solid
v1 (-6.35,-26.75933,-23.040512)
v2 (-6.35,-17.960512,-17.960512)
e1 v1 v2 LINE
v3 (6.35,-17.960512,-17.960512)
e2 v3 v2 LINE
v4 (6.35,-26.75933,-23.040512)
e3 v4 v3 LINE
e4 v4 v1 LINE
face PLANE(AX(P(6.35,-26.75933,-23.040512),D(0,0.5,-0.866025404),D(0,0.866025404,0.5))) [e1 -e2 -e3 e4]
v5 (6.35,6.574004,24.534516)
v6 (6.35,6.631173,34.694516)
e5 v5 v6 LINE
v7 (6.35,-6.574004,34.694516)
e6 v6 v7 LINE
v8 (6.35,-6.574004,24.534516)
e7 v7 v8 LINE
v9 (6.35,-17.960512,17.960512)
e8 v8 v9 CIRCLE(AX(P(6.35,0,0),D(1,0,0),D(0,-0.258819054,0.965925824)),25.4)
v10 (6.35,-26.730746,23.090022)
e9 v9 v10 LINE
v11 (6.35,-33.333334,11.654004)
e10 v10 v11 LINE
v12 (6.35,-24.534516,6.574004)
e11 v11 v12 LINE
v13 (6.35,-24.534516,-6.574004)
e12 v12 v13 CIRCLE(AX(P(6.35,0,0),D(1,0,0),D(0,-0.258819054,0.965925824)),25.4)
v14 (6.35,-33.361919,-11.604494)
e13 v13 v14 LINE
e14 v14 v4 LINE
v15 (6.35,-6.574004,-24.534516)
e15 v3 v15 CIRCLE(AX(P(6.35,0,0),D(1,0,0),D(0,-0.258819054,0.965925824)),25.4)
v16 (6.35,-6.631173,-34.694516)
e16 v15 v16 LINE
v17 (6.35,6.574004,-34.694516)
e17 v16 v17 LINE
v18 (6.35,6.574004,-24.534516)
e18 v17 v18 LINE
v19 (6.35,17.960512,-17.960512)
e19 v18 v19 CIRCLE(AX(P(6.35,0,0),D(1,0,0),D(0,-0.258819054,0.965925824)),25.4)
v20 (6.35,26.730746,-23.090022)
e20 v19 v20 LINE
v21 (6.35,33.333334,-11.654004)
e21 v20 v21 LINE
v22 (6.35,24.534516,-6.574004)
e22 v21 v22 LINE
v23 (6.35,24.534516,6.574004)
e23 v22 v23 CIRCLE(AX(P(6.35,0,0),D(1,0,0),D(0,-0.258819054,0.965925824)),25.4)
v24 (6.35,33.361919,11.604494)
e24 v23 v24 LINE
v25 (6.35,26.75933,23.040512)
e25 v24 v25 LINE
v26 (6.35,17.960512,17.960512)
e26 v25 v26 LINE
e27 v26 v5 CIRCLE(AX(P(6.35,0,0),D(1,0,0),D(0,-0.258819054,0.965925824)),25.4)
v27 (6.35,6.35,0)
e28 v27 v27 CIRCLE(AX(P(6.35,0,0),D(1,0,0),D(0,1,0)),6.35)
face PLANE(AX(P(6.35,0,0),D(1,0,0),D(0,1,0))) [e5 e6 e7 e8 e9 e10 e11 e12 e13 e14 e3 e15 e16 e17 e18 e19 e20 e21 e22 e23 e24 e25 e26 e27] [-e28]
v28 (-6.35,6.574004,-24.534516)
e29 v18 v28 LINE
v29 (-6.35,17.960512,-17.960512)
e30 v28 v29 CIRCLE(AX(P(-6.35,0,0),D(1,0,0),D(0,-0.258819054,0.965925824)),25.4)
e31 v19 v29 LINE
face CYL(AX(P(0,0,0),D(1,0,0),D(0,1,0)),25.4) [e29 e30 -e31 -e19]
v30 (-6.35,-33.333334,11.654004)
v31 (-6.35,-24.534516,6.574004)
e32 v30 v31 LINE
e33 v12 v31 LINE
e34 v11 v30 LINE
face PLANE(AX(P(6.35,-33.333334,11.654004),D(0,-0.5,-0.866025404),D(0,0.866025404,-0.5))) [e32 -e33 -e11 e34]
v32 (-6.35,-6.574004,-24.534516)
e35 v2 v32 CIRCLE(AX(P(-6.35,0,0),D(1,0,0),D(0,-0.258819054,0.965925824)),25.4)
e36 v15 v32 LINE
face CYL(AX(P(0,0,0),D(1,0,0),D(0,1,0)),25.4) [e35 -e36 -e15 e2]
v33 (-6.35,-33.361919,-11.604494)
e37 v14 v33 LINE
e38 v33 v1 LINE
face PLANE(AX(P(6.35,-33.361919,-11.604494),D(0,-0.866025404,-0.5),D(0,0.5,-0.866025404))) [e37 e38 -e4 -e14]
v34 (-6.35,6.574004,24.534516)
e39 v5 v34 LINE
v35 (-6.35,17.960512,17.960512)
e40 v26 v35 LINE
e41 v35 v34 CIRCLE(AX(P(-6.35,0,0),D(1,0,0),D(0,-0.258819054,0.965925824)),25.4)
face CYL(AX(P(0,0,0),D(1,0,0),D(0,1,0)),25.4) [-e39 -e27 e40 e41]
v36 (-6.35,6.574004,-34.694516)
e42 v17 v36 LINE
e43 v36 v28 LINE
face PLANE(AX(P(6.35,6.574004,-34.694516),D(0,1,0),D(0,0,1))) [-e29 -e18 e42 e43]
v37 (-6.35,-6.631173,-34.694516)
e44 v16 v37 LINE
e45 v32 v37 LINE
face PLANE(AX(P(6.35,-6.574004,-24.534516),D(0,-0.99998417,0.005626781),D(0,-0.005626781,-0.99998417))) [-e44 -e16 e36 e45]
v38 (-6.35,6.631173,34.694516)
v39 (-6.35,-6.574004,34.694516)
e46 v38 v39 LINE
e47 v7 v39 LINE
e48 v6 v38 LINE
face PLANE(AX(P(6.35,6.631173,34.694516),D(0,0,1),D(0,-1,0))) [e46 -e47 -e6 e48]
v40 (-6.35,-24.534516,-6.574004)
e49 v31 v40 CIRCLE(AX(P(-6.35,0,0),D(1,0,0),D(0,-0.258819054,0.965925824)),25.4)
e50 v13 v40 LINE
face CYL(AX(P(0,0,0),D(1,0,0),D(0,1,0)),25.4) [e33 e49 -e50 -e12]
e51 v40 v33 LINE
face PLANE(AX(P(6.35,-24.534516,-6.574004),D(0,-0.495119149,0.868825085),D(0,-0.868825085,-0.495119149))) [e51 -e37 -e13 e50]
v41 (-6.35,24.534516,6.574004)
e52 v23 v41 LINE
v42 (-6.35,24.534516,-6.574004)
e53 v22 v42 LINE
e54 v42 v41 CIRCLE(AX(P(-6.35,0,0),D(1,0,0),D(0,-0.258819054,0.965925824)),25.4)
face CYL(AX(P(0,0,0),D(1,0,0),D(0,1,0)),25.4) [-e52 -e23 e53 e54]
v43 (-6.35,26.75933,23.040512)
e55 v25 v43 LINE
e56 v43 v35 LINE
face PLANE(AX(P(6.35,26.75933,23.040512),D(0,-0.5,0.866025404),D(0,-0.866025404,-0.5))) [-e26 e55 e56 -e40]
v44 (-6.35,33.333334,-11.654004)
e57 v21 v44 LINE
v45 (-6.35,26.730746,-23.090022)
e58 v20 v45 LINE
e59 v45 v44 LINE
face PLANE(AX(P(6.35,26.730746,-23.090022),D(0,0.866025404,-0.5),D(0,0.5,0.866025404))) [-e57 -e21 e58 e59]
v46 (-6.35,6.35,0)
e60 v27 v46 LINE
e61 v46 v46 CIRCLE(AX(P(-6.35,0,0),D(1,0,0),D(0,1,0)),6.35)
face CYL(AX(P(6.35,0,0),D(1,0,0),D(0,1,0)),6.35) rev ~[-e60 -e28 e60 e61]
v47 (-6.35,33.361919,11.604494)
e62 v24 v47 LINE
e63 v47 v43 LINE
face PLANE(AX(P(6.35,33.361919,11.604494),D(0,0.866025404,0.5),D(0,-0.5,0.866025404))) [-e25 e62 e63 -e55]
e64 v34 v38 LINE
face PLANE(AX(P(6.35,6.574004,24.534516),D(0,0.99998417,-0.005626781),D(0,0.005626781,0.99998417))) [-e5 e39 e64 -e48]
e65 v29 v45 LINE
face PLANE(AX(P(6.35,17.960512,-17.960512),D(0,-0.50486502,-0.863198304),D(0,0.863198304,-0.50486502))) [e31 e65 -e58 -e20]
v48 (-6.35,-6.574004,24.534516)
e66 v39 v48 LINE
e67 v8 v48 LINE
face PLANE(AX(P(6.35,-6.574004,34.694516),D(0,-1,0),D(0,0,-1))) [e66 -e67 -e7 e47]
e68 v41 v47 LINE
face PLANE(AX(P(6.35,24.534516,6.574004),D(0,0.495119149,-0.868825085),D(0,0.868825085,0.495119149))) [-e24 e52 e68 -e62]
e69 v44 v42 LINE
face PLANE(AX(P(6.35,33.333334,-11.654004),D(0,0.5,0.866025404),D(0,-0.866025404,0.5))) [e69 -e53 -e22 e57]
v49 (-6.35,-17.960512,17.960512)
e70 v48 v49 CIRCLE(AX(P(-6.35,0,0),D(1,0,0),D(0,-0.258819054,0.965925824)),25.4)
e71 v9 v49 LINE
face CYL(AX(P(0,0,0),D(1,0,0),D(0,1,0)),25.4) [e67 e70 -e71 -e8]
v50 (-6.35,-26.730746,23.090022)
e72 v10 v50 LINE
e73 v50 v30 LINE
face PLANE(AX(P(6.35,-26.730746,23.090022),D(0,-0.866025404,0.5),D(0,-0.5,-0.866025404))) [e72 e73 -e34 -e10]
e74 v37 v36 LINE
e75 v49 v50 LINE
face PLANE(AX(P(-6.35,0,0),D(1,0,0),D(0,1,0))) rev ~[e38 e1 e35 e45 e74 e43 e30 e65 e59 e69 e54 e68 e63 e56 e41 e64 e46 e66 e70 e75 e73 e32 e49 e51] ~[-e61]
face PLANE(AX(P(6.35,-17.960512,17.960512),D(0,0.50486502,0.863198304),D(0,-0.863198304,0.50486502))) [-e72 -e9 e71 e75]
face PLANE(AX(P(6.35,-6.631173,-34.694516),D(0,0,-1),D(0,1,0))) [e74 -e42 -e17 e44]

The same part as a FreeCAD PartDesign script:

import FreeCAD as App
import Part
import Sketcher
from FreeCAD import Vector
Q = App.Units.Quantity


def add_polygon(sketch, points):
    """Adds a closed chain of lines whose ends are joined by coincident constraints."""
    first, n = sketch.GeometryCount, len(points)
    for a, b in zip(points, points[1:] + points[:1]):
        sketch.addGeometry(Part.LineSegment(App.Vector(*a, 0), App.Vector(*b, 0)), False)
    for i in range(n):
        sketch.addConstraint(Sketcher.Constraint("Coincident", first + i, 2, first + (i + 1) % n, 1))

doc = App.newDocument("Part")
params = doc.addObject("Spreadsheet::Sheet", "Params")
for row, (alias, value) in enumerate([
    ("sketch1_diameter", "2 in"),
    ("pad1_length", "0.5 in"),
    ("sketch2_length", "1 in"),
    ("sketch2_length2", "1 in"),
    ("sketch2_height", "0.4 in"),
    ("pad2_length", "0.5 in"),
    ("sketch3_diameter", "0.5 in"),
    ("pocket1_length", "1 in"),
], start=1):
    params.set(f"A{row}", alias)
    params.set(f"B{row}", "=" + value)
    params.setAlias(f"B{row}", alias)

body = doc.addObject("PartDesign::Body", "Body")

# Sketch on YZ plane
sketch1 = body.newObject("Sketcher::SketchObject", "Sketch")
sketch1.AttachmentSupport = (doc.getObject("YZ_Plane"), [""])
sketch1.MapMode = "FlatFace"
sketch1.addGeometry(Part.Circle(Vector(0, 0, 0), Vector(0, 0, 1), 25), False)
sketch1.addConstraint([
    Sketcher.Constraint("Coincident", 0, 3, -1, 1),
    Sketcher.Constraint("Diameter", 0, Q("2 in")),
])
sketch1.setExpression("Constraints[1]", "Params.sketch1_diameter")
pad1 = body.newObject("PartDesign::Pad", "Pad")
pad1.Profile = sketch1
pad1.setExpression("Length", "Params.pad1_length")
pad1.Midplane = True

# Sketch on YZ plane
sketch2 = body.newObject("Sketcher::SketchObject", "Sketch001")
sketch2.AttachmentSupport = (doc.getObject("YZ_Plane"), [""])
sketch2.MapMode = "FlatFace"
sketch2.AttachmentOffset = App.Placement(Vector(0, 0, 0.25 * 25.4), App.Rotation())
add_polygon(sketch2, [(-6.574004, 24.534516), (0, 0), (6.574004, 24.534516), (6.631173, 34.694516), (-6.574004, 34.694516)])  # lines 0-4
sketch2.addConstraint([
    Sketcher.Constraint("Horizontal", 3),
    Sketcher.Constraint("Vertical", 4),
    Sketcher.Constraint("Coincident", 0, 2, -1, 1),
    Sketcher.Constraint("Distance", 0, Q("1 in")),
    Sketcher.Constraint("Distance", 1, Q("1 in")),
    Sketcher.Constraint("DistanceY", 4, 2, 4, 1, Q("0.4 in")),
    Sketcher.Constraint("DistanceY", 1, 2, 2, 2, Q("0.4 in")),
    Sketcher.Constraint("Distance", 2, 10.160161),
    Sketcher.Constraint("DistanceX", 3, 2, 3, 1, 13.205177),
])
sketch2.setExpression("Constraints[8]", "Params.sketch2_length")
sketch2.setExpression("Constraints[9]", "Params.sketch2_length2")
sketch2.setExpression("Constraints[10]", "Params.sketch2_height")
pad2 = body.newObject("PartDesign::Pad", "Pad001")
pad2.Profile = sketch2
pad2.setExpression("Length", "Params.pad2_length")
pad2.Reversed = True
body2 = doc.addObject("PartDesign::Body", "Body001")
doc.recompute()

body2.BaseFeature = body
doc.recompute()

body3 = doc.addObject("PartDesign::Body", "Body002")
body3.BaseFeature = body
body3.Placement = App.Placement(Vector(0, 0, 0), App.Rotation(Vector(-1, 0, 0), 60))
boolean = body2.newObject("PartDesign::Boolean", "Boolean")
boolean.Type = "Fuse"
boolean.addObjects([body3])
doc.recompute()

body4 = doc.addObject("PartDesign::Body", "Body003")
body4.BaseFeature = body
body4.Placement = App.Placement(Vector(0, 0, 0), App.Rotation(Vector(-1, 0, 0), 120))
boolean2 = body2.newObject("PartDesign::Boolean", "Boolean001")
boolean2.Type = "Fuse"
boolean2.addObjects([body4])
doc.recompute()

body5 = doc.addObject("PartDesign::Body", "Body004")
body5.BaseFeature = body
body5.Placement = App.Placement(Vector(0, 0, 0), App.Rotation(Vector(-1, 0, 0), 180))
boolean3 = body2.newObject("PartDesign::Boolean", "Boolean002")
boolean3.Type = "Fuse"
boolean3.addObjects([body5])
doc.recompute()

body6 = doc.addObject("PartDesign::Body", "Body005")
body6.BaseFeature = body
body6.Placement = App.Placement(Vector(0, 0, 0), App.Rotation(Vector(-1, 0, 0), 240))
boolean4 = body2.newObject("PartDesign::Boolean", "Boolean003")
boolean4.Type = "Fuse"
boolean4.addObjects([body6])
doc.recompute()

body.Placement = App.Placement(Vector(0, 0, 0), App.Rotation(Vector(-1, 0, 0), 300))
boolean5 = body2.newObject("PartDesign::Boolean", "Boolean004")
boolean5.Type = "Fuse"
boolean5.addObjects([body])

# Sketch on YZ plane
sketch3 = body2.newObject("Sketcher::SketchObject", "Sketch002")
sketch3.AttachmentSupport = (doc.getObject("YZ_Plane001"), [""])
sketch3.MapMode = "FlatFace"
sketch3.AttachmentOffset = App.Placement(Vector(0, 0, 0.25 * 25.4), App.Rotation())
sketch3.addGeometry(Part.Circle(Vector(0, 0, 0), Vector(0, 0, 1), 6), False)
sketch3.addConstraint([
    Sketcher.Constraint("Coincident", 0, 3, -1, 1),
    Sketcher.Constraint("Diameter", 0, Q("0.5 in")),
])
sketch3.setExpression("Constraints[1]", "Params.sketch3_diameter")
pocket1 = body2.newObject("PartDesign::Pocket", "Pocket")
pocket1.Profile = sketch3
pocket1.setExpression("Length", "Params.pocket1_length")

doc.recompute()
